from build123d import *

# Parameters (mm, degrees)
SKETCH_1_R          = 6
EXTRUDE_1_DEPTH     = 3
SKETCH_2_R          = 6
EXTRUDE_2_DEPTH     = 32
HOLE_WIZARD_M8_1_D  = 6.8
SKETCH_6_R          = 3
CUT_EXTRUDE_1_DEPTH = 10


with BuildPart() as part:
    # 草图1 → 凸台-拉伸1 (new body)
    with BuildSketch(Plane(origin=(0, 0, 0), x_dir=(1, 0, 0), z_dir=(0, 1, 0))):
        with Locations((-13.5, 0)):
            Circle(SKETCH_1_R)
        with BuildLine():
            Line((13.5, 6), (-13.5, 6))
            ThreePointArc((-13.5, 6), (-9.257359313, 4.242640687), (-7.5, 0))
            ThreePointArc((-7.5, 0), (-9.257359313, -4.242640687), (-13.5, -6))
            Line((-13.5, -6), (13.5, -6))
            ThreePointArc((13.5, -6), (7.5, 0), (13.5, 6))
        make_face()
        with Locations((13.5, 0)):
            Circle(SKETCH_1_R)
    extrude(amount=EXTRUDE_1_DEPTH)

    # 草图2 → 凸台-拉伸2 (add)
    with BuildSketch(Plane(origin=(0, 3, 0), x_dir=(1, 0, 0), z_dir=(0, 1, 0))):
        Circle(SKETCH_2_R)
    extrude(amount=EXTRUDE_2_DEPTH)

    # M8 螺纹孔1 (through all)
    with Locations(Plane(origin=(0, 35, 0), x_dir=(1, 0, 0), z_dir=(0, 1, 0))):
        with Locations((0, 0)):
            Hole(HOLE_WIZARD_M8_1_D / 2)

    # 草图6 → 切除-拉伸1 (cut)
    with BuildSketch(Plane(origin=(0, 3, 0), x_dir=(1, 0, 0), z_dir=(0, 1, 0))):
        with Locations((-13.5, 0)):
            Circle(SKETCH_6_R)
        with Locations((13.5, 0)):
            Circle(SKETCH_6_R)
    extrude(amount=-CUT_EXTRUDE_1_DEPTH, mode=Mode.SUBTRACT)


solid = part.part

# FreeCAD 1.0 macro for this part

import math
import FreeCAD as App
import Part
import Sketcher
from FreeCAD import Vector
Q = App.Units.Quantity

doc = App.newDocument("Part")
params = doc.addObject("Spreadsheet::Sheet", "Params")
for row, (alias, value) in enumerate([
    ("sketch1_radius", "6 mm"),
    ("sketch1_width", "27 mm"),
    ("pad1_length", "3 mm"),
    ("sketch2_diameter", "12 mm"),
    ("pad2_length", "32 mm"),
    ("sketch3_diameter", "6.8 mm"),
    ("hole_diameter", "6.8 mm"),
    ("sketch4_diameter", "6 mm"),
    ("pocket1_length", "10 mm"),
], start=1):
    params.set(f"A{row}", alias)
    params.set(f"B{row}", "=" + value)
    params.setAlias(f"B{row}", alias)

body = doc.addObject("PartDesign::Body", "Body")

# Sketch on XZ plane
sketch1 = body.newObject("Sketcher::SketchObject", "Sketch")
sketch1.AttachmentSupport = (doc.getObject("XZ_Plane"), [""])
sketch1.MapMode = "FlatFace"
sketch1.addGeometry([
    Part.ArcOfCircle(Part.Circle(Vector(-13.5, 0, 0), Vector(0, 0, 1), 6), math.radians(90), math.radians(270)),
    Part.LineSegment(Vector(-13.5, 6, 0), Vector(13.5, 6, 0)),
    Part.ArcOfCircle(Part.Circle(Vector(13.5, 0, 0), Vector(0, 0, 1), 6), math.radians(-90), math.radians(90)),
    Part.LineSegment(Vector(13.5, -6, 0), Vector(-13.5, -6, 0)),
], False)
sketch1.addConstraint([
    Sketcher.Constraint("Tangent", 0, 1, 1, 1),
    Sketcher.Constraint("Tangent", 1, 2, 2, 2),
    Sketcher.Constraint("Tangent", 2, 1, 3, 1),
    Sketcher.Constraint("Tangent", 3, 2, 0, 2),
    Sketcher.Constraint("Horizontal", 1),
    Sketcher.Constraint("Horizontal", 3),
    Sketcher.Constraint("Symmetric", 0, 3, 2, 3, -1, 1),
    Sketcher.Constraint("Radius", 0, Q("6 mm")),
    Sketcher.Constraint("DistanceX", 1, 1, 1, 2, Q("27 mm")),
])
sketch1.setExpression("Constraints[7]", "Params.sketch1_radius")
sketch1.setExpression("Constraints[8]", "Params.sketch1_width")
pad1 = body.newObject("PartDesign::Pad", "Pad")
pad1.Profile = sketch1
pad1.setExpression("Length", "Params.pad1_length")
pad1.Reversed = True

# Sketch on XZ plane
sketch2 = body.newObject("Sketcher::SketchObject", "Sketch001")
sketch2.AttachmentSupport = (doc.getObject("XZ_Plane"), [""])
sketch2.MapMode = "FlatFace"
sketch2.AttachmentOffset = App.Placement(Vector(0, 0, -3), App.Rotation())
sketch2.addGeometry(Part.Circle(Vector(0, 0, 0), Vector(0, 0, 1), 6), False)
sketch2.addConstraint([
    Sketcher.Constraint("Coincident", 0, 3, -1, 1),
    Sketcher.Constraint("Diameter", 0, Q("12 mm")),
])
sketch2.setExpression("Constraints[1]", "Params.sketch2_diameter")
pad2 = body.newObject("PartDesign::Pad", "Pad001")
pad2.Profile = sketch2
pad2.setExpression("Length", "Params.pad2_length")
pad2.Reversed = True

# Sketch on XZ plane
sketch3 = body.newObject("Sketcher::SketchObject", "Sketch002")
sketch3.AttachmentSupport = (doc.getObject("XZ_Plane"), [""])
sketch3.MapMode = "FlatFace"
sketch3.AttachmentOffset = App.Placement(Vector(0, 0, -35), App.Rotation())
sketch3.addGeometry(Part.Circle(Vector(0, 0, 0), Vector(0, 0, 1), 3.4), False)
sketch3.addConstraint([
    Sketcher.Constraint("Coincident", 0, 3, -1, 1),
    Sketcher.Constraint("Diameter", 0, Q("6.8 mm")),
])
sketch3.setExpression("Constraints[1]", "Params.sketch3_diameter")
doc.recompute()
hole = body.newObject("PartDesign::Hole", "Hole")
hole.Profile = sketch3
hole.ThreadType = "None"
hole.setExpression("Diameter", "Params.hole_diameter")
hole.DepthType = "ThroughAll"
hole.Reversed = True

# Sketch on XZ plane
sketch4 = body.newObject("Sketcher::SketchObject", "Sketch003")
sketch4.AttachmentSupport = (doc.getObject("XZ_Plane"), [""])
sketch4.MapMode = "FlatFace"
sketch4.AttachmentOffset = App.Placement(Vector(0, 0, -3), App.Rotation())
sketch4.addGeometry([
    Part.Circle(Vector(-13.5, 0, 0), Vector(0, 0, 1), 3),
    Part.Circle(Vector(13.5, 0, 0), Vector(0, 0, 1), 3),
], False)
sketch4.addConstraint([
    Sketcher.Constraint("Equal", 0, 1),
    Sketcher.Constraint("Symmetric", 0, 3, 1, 3, -1, 1),
    Sketcher.Constraint("PointOnObject", 0, 3, -1),
    Sketcher.Constraint("Diameter", 0, Q("6 mm")),
    Sketcher.Constraint("DistanceX", 0, 3, 1, 3, Q("27 mm")),
])
sketch4.setExpression("Constraints[3]", "Params.sketch4_diameter")
pocket1 = body.newObject("PartDesign::Pocket", "Pocket")
pocket1.Profile = sketch4
pocket1.setExpression("Length", "Params.pocket1_length")
pocket1.Reversed = True

doc.recompute()
